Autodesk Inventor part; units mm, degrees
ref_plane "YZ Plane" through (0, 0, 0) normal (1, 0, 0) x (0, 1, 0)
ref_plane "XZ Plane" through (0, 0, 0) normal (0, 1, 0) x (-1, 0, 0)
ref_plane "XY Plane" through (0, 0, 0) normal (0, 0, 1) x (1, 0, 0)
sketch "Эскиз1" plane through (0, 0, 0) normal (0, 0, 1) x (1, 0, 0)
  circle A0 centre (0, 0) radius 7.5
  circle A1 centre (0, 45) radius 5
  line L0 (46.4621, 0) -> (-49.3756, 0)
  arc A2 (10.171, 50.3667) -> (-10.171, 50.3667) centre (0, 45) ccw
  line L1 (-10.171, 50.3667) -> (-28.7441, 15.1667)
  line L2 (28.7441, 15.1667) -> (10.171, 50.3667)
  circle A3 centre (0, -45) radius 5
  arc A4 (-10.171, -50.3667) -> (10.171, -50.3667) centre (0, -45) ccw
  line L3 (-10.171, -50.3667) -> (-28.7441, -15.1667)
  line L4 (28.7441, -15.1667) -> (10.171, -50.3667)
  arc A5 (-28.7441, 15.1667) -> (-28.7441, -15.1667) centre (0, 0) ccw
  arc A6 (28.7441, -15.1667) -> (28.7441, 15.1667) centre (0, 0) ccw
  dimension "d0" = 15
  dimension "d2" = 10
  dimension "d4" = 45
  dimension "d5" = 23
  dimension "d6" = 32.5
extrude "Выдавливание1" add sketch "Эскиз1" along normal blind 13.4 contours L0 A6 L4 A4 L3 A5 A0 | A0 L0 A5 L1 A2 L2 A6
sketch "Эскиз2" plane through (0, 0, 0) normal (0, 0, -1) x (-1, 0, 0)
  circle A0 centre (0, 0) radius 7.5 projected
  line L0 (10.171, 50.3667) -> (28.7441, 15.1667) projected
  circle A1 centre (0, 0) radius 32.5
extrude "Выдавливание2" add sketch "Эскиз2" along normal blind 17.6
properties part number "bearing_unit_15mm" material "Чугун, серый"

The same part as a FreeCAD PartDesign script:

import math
import FreeCAD as App
import Part
import Sketcher
Q = App.Units.Quantity

doc = App.newDocument("Part")
body = doc.addObject("PartDesign::Body", "Body")

# Sketch on XY plane
sketch1 = doc.addObject("Sketcher::SketchObject", "Sketch")
body.addObject(sketch1)
sketch1.AttachmentSupport = (doc.XY_Plane, [""])
sketch1.MapMode = "FlatFace"
sketch1.addGeometry([
    Part.ArcOfCircle(Part.Circle(App.Vector(0, 0, 0), App.Vector(0, 0, 1), 33), math.radians(-28), math.radians(28)),  # 0
    Part.LineSegment(App.Vector(29, 15, 0), App.Vector(10, 50, 0)),  # 1
    Part.ArcOfCircle(Part.Circle(App.Vector(0, 45, 0), App.Vector(0, 0, 1), 12), math.radians(28), math.radians(152)),  # 2
    Part.LineSegment(App.Vector(-10, 50, 0), App.Vector(-29, 15, 0)),  # 3
    Part.ArcOfCircle(Part.Circle(App.Vector(0, 0, 0), App.Vector(0, 0, 1), 33), math.radians(152), math.radians(208)),  # 4
    Part.LineSegment(App.Vector(-29, -15, 0), App.Vector(-10, -50, 0)),  # 5
    Part.ArcOfCircle(Part.Circle(App.Vector(0, -45, 0), App.Vector(0, 0, 1), 12), math.radians(-152), math.radians(-28)),  # 6
    Part.LineSegment(App.Vector(10, -50, 0), App.Vector(29, -15, 0)),  # 7
    Part.Circle(App.Vector(0, 0, 0), App.Vector(0, 0, 1), 8),  # 8
    Part.Circle(App.Vector(0, -45, 0), App.Vector(0, 0, 1), 5),  # 9
    Part.Circle(App.Vector(0, 45, 0), App.Vector(0, 0, 1), 5),  # 10
], False)
sketch1.addConstraint([
    Sketcher.Constraint("Tangent", 0, 2, 1, 1),
    Sketcher.Constraint("Tangent", 1, 2, 2, 1),
    Sketcher.Constraint("Tangent", 2, 2, 3, 1),
    Sketcher.Constraint("Tangent", 3, 2, 4, 1),
    Sketcher.Constraint("Tangent", 4, 2, 5, 1),
    Sketcher.Constraint("Tangent", 5, 2, 6, 1),
    Sketcher.Constraint("Tangent", 6, 2, 7, 1),
    Sketcher.Constraint("Tangent", 7, 2, 0, 1),
    Sketcher.Constraint("Coincident", 0, 3, -1, 1),
    Sketcher.Constraint("Coincident", 4, 3, -1, 1),
    Sketcher.Constraint("Coincident", 8, 3, -1, 1),
    Sketcher.Constraint("Coincident", 9, 3, 6, 3),
    Sketcher.Constraint("Coincident", 10, 3, 2, 3),
    Sketcher.Constraint("Equal", 0, 4),
    Sketcher.Constraint("Equal", 2, 6),
    Sketcher.Constraint("Equal", 9, 10),
    Sketcher.Constraint("Symmetric", 2, 3, 6, 3, -1, 1),
    Sketcher.Constraint("PointOnObject", 2, 3, -2),
    Sketcher.Constraint("Diameter", 8, Q("15 mm")),
    Sketcher.Constraint("Diameter", 9, Q("10 mm")),
    Sketcher.Constraint("Radius", 0, Q("32.5 mm")),
    Sketcher.Constraint("Radius", 2, Q("11.5 mm")),
    Sketcher.Constraint("DistanceY", -1, 1, 2, 3, Q("45 mm")),
])
pad1 = doc.addObject("PartDesign::Pad", "Pad")
body.addObject(pad1)
pad1.Profile = sketch1
pad1.Length = 13.4

# Sketch on XY plane
sketch2 = doc.addObject("Sketcher::SketchObject", "Sketch001")
body.addObject(sketch2)
sketch2.AttachmentSupport = (doc.XY_Plane, [""])
sketch2.MapMode = "FlatFace"
sketch2.addGeometry([
    Part.Circle(App.Vector(0, 0, 0), App.Vector(0, 0, 1), 32),
    Part.Circle(App.Vector(0, 0, 0), App.Vector(0, 0, 1), 8),
], False)
sketch2.addConstraint([
    Sketcher.Constraint("Coincident", 0, 3, -1, 1),
    Sketcher.Constraint("Coincident", 1, 3, -1, 1),
    Sketcher.Constraint("Diameter", 0, Q("65 mm")),
    Sketcher.Constraint("Diameter", 1, Q("15 mm")),
])
pad2 = doc.addObject("PartDesign::Pad", "Pad001")
body.addObject(pad2)
pad2.Profile = sketch2
pad2.Length = 17.6
pad2.Reversed = True

doc.recompute()
